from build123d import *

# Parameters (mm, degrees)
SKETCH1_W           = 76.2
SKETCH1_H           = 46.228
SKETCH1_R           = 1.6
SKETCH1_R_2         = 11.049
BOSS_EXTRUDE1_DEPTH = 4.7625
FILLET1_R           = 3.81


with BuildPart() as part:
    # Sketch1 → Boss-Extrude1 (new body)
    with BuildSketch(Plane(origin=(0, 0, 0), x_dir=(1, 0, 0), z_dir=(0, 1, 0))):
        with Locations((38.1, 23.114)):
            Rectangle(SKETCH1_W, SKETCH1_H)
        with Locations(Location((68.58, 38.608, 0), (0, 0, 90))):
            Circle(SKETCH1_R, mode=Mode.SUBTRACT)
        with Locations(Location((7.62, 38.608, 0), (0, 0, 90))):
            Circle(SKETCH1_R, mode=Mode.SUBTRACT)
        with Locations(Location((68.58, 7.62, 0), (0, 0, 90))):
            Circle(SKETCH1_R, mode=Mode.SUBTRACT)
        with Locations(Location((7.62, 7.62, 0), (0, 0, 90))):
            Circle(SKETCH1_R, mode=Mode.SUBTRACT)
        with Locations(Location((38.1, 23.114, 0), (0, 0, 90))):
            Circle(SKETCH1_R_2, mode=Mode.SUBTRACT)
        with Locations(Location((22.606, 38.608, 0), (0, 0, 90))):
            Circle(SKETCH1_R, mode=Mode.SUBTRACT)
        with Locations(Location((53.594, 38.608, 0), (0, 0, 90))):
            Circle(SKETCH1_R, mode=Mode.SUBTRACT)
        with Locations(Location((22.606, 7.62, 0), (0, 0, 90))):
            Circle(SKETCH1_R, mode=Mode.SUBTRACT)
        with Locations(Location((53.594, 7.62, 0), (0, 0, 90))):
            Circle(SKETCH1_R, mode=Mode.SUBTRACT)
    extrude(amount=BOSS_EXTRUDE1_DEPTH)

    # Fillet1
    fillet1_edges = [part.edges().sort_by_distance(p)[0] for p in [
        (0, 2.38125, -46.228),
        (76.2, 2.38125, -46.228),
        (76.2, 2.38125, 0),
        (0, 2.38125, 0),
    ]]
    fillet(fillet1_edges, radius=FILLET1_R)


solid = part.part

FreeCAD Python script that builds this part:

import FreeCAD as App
import Part
import Sketcher

V = App.Vector
Q = App.Units.Quantity


def edges_at(feature, points):
    """Names of the edges that pass closest to the given points."""
    edges = feature.Shape.Edges
    near = lambda p: min(range(len(edges)), key=lambda i: edges[i].distToShape(Part.Vertex(*p))[0])
    return sorted({f"Edge{near(p) + 1}" for p in points})

doc = App.newDocument("Part")
body = doc.addObject("PartDesign::Body", "Body")

sketch1 = body.newObject("Sketcher::SketchObject", "Sketch")
sketch1.AttachmentSupport = (doc.getObject("XZ_Plane"), [""])
sketch1.MapMode = "FlatFace"
sketch1.addGeometry([
    Part.LineSegment(V(0, -46.2, 0), V(0, 0, 0)),
    Part.LineSegment(V(0, 0, 0), V(76.2, 0, 0)),
    Part.LineSegment(V(76.2, 0, 0), V(76.2, -46.2, 0)),
    Part.LineSegment(V(76.2, -46.2, 0), V(0, -46.2, 0)),
    Part.Circle(V(7.6, -7.6, 0), V(0, 0, 1), 1.6),
    Part.Circle(V(22.6, -7.6, 0), V(0, 0, 1), 1.6),
    Part.Circle(V(53.6, -7.6, 0), V(0, 0, 1), 1.6),
    Part.Circle(V(68.6, -7.6, 0), V(0, 0, 1), 1.6),
    Part.Circle(V(7.6, -38.6, 0), V(0, 0, 1), 1.6),
    Part.Circle(V(22.6, -38.6, 0), V(0, 0, 1), 1.6),
    Part.Circle(V(38.1, -23.1, 0), V(0, 0, 1), 11),
    Part.Circle(V(53.6, -38.6, 0), V(0, 0, 1), 1.6),
    Part.Circle(V(68.6, -38.6, 0), V(0, 0, 1), 1.6),
], False)
sketch1.addConstraint([
    Sketcher.Constraint("Coincident", 0, 2, 1, 1),
    Sketcher.Constraint("Coincident", 1, 2, 2, 1),
    Sketcher.Constraint("Coincident", 2, 2, 3, 1),
    Sketcher.Constraint("Coincident", 3, 2, 0, 1),
    Sketcher.Constraint("Vertical", 0),
    Sketcher.Constraint("Horizontal", 1),
    Sketcher.Constraint("Vertical", 2),
    Sketcher.Constraint("Horizontal", 3),
    Sketcher.Constraint("Coincident", 0, 2, -1, 1),
    Sketcher.Constraint("Equal", 4, 5),
    Sketcher.Constraint("Equal", 5, 6),
    Sketcher.Constraint("Equal", 6, 7),
    Sketcher.Constraint("Equal", 7, 8),
    Sketcher.Constraint("Equal", 8, 9),
    Sketcher.Constraint("Equal", 9, 11),
    Sketcher.Constraint("Equal", 11, 12),
    Sketcher.Constraint("Horizontal", 4, 3, 5, 3),
    Sketcher.Constraint("Horizontal", 5, 3, 6, 3),
    Sketcher.Constraint("Horizontal", 6, 3, 7, 3),
    Sketcher.Constraint("Horizontal", 8, 3, 9, 3),
    Sketcher.Constraint("Horizontal", 9, 3, 11, 3),
    Sketcher.Constraint("Horizontal", 11, 3, 12, 3),
    Sketcher.Constraint("Vertical", 4, 3, 8, 3),
    Sketcher.Constraint("Vertical", 5, 3, 9, 3),
    Sketcher.Constraint("Vertical", 6, 3, 11, 3),
    Sketcher.Constraint("Vertical", 7, 3, 12, 3),
    Sketcher.Constraint("Diameter", 10, Q("0.87 in")),
    Sketcher.Constraint("DistanceX", 1, 1, 1, 2, Q("3 in")),
    Sketcher.Constraint("DistanceY", 0, 1, 0, 2, Q("1.82 in")),
    Sketcher.Constraint("DistanceX", -1, 1, 4, 3, Q("0.3 in")),
    Sketcher.Constraint("DistanceY", 4, 3, -1, 1, Q("0.3 in")),
    Sketcher.Constraint("DistanceX", -1, 1, 7, 3, Q("2.7 in")),
    Sketcher.Constraint("DistanceX", -1, 1, 10, 3, Q("1.5 in")),
    Sketcher.Constraint("DistanceY", 2, 2, 12, 3, Q("0.3 in")),
    Sketcher.Constraint("Diameter", 4, 3.2),
    Sketcher.Constraint("DistanceX", -1, 1, 5, 3, Q("0.89 in")),
    Sketcher.Constraint("DistanceX", -1, 1, 6, 3, Q("2.11 in")),
    Sketcher.Constraint("DistanceY", 10, 3, -1, 1, Q("0.91 in")),
])
pad1 = body.newObject("PartDesign::Pad", "Pad")
pad1.Profile = sketch1
pad1.Length = Q("0.1875 in")
pad1.Reversed = True
doc.recompute()

fillet = body.newObject("PartDesign::Fillet", "Fillet")
fillet.Base = (pad1, edges_at(pad1, [
    (0, 2.381, -46.228),
    (76.2, 2.381, -46.228),
    (76.2, 2.381, 0),
    (0, 2.381, 0),
]))
fillet.Radius = Q("0.15 in")

doc.recompute()
